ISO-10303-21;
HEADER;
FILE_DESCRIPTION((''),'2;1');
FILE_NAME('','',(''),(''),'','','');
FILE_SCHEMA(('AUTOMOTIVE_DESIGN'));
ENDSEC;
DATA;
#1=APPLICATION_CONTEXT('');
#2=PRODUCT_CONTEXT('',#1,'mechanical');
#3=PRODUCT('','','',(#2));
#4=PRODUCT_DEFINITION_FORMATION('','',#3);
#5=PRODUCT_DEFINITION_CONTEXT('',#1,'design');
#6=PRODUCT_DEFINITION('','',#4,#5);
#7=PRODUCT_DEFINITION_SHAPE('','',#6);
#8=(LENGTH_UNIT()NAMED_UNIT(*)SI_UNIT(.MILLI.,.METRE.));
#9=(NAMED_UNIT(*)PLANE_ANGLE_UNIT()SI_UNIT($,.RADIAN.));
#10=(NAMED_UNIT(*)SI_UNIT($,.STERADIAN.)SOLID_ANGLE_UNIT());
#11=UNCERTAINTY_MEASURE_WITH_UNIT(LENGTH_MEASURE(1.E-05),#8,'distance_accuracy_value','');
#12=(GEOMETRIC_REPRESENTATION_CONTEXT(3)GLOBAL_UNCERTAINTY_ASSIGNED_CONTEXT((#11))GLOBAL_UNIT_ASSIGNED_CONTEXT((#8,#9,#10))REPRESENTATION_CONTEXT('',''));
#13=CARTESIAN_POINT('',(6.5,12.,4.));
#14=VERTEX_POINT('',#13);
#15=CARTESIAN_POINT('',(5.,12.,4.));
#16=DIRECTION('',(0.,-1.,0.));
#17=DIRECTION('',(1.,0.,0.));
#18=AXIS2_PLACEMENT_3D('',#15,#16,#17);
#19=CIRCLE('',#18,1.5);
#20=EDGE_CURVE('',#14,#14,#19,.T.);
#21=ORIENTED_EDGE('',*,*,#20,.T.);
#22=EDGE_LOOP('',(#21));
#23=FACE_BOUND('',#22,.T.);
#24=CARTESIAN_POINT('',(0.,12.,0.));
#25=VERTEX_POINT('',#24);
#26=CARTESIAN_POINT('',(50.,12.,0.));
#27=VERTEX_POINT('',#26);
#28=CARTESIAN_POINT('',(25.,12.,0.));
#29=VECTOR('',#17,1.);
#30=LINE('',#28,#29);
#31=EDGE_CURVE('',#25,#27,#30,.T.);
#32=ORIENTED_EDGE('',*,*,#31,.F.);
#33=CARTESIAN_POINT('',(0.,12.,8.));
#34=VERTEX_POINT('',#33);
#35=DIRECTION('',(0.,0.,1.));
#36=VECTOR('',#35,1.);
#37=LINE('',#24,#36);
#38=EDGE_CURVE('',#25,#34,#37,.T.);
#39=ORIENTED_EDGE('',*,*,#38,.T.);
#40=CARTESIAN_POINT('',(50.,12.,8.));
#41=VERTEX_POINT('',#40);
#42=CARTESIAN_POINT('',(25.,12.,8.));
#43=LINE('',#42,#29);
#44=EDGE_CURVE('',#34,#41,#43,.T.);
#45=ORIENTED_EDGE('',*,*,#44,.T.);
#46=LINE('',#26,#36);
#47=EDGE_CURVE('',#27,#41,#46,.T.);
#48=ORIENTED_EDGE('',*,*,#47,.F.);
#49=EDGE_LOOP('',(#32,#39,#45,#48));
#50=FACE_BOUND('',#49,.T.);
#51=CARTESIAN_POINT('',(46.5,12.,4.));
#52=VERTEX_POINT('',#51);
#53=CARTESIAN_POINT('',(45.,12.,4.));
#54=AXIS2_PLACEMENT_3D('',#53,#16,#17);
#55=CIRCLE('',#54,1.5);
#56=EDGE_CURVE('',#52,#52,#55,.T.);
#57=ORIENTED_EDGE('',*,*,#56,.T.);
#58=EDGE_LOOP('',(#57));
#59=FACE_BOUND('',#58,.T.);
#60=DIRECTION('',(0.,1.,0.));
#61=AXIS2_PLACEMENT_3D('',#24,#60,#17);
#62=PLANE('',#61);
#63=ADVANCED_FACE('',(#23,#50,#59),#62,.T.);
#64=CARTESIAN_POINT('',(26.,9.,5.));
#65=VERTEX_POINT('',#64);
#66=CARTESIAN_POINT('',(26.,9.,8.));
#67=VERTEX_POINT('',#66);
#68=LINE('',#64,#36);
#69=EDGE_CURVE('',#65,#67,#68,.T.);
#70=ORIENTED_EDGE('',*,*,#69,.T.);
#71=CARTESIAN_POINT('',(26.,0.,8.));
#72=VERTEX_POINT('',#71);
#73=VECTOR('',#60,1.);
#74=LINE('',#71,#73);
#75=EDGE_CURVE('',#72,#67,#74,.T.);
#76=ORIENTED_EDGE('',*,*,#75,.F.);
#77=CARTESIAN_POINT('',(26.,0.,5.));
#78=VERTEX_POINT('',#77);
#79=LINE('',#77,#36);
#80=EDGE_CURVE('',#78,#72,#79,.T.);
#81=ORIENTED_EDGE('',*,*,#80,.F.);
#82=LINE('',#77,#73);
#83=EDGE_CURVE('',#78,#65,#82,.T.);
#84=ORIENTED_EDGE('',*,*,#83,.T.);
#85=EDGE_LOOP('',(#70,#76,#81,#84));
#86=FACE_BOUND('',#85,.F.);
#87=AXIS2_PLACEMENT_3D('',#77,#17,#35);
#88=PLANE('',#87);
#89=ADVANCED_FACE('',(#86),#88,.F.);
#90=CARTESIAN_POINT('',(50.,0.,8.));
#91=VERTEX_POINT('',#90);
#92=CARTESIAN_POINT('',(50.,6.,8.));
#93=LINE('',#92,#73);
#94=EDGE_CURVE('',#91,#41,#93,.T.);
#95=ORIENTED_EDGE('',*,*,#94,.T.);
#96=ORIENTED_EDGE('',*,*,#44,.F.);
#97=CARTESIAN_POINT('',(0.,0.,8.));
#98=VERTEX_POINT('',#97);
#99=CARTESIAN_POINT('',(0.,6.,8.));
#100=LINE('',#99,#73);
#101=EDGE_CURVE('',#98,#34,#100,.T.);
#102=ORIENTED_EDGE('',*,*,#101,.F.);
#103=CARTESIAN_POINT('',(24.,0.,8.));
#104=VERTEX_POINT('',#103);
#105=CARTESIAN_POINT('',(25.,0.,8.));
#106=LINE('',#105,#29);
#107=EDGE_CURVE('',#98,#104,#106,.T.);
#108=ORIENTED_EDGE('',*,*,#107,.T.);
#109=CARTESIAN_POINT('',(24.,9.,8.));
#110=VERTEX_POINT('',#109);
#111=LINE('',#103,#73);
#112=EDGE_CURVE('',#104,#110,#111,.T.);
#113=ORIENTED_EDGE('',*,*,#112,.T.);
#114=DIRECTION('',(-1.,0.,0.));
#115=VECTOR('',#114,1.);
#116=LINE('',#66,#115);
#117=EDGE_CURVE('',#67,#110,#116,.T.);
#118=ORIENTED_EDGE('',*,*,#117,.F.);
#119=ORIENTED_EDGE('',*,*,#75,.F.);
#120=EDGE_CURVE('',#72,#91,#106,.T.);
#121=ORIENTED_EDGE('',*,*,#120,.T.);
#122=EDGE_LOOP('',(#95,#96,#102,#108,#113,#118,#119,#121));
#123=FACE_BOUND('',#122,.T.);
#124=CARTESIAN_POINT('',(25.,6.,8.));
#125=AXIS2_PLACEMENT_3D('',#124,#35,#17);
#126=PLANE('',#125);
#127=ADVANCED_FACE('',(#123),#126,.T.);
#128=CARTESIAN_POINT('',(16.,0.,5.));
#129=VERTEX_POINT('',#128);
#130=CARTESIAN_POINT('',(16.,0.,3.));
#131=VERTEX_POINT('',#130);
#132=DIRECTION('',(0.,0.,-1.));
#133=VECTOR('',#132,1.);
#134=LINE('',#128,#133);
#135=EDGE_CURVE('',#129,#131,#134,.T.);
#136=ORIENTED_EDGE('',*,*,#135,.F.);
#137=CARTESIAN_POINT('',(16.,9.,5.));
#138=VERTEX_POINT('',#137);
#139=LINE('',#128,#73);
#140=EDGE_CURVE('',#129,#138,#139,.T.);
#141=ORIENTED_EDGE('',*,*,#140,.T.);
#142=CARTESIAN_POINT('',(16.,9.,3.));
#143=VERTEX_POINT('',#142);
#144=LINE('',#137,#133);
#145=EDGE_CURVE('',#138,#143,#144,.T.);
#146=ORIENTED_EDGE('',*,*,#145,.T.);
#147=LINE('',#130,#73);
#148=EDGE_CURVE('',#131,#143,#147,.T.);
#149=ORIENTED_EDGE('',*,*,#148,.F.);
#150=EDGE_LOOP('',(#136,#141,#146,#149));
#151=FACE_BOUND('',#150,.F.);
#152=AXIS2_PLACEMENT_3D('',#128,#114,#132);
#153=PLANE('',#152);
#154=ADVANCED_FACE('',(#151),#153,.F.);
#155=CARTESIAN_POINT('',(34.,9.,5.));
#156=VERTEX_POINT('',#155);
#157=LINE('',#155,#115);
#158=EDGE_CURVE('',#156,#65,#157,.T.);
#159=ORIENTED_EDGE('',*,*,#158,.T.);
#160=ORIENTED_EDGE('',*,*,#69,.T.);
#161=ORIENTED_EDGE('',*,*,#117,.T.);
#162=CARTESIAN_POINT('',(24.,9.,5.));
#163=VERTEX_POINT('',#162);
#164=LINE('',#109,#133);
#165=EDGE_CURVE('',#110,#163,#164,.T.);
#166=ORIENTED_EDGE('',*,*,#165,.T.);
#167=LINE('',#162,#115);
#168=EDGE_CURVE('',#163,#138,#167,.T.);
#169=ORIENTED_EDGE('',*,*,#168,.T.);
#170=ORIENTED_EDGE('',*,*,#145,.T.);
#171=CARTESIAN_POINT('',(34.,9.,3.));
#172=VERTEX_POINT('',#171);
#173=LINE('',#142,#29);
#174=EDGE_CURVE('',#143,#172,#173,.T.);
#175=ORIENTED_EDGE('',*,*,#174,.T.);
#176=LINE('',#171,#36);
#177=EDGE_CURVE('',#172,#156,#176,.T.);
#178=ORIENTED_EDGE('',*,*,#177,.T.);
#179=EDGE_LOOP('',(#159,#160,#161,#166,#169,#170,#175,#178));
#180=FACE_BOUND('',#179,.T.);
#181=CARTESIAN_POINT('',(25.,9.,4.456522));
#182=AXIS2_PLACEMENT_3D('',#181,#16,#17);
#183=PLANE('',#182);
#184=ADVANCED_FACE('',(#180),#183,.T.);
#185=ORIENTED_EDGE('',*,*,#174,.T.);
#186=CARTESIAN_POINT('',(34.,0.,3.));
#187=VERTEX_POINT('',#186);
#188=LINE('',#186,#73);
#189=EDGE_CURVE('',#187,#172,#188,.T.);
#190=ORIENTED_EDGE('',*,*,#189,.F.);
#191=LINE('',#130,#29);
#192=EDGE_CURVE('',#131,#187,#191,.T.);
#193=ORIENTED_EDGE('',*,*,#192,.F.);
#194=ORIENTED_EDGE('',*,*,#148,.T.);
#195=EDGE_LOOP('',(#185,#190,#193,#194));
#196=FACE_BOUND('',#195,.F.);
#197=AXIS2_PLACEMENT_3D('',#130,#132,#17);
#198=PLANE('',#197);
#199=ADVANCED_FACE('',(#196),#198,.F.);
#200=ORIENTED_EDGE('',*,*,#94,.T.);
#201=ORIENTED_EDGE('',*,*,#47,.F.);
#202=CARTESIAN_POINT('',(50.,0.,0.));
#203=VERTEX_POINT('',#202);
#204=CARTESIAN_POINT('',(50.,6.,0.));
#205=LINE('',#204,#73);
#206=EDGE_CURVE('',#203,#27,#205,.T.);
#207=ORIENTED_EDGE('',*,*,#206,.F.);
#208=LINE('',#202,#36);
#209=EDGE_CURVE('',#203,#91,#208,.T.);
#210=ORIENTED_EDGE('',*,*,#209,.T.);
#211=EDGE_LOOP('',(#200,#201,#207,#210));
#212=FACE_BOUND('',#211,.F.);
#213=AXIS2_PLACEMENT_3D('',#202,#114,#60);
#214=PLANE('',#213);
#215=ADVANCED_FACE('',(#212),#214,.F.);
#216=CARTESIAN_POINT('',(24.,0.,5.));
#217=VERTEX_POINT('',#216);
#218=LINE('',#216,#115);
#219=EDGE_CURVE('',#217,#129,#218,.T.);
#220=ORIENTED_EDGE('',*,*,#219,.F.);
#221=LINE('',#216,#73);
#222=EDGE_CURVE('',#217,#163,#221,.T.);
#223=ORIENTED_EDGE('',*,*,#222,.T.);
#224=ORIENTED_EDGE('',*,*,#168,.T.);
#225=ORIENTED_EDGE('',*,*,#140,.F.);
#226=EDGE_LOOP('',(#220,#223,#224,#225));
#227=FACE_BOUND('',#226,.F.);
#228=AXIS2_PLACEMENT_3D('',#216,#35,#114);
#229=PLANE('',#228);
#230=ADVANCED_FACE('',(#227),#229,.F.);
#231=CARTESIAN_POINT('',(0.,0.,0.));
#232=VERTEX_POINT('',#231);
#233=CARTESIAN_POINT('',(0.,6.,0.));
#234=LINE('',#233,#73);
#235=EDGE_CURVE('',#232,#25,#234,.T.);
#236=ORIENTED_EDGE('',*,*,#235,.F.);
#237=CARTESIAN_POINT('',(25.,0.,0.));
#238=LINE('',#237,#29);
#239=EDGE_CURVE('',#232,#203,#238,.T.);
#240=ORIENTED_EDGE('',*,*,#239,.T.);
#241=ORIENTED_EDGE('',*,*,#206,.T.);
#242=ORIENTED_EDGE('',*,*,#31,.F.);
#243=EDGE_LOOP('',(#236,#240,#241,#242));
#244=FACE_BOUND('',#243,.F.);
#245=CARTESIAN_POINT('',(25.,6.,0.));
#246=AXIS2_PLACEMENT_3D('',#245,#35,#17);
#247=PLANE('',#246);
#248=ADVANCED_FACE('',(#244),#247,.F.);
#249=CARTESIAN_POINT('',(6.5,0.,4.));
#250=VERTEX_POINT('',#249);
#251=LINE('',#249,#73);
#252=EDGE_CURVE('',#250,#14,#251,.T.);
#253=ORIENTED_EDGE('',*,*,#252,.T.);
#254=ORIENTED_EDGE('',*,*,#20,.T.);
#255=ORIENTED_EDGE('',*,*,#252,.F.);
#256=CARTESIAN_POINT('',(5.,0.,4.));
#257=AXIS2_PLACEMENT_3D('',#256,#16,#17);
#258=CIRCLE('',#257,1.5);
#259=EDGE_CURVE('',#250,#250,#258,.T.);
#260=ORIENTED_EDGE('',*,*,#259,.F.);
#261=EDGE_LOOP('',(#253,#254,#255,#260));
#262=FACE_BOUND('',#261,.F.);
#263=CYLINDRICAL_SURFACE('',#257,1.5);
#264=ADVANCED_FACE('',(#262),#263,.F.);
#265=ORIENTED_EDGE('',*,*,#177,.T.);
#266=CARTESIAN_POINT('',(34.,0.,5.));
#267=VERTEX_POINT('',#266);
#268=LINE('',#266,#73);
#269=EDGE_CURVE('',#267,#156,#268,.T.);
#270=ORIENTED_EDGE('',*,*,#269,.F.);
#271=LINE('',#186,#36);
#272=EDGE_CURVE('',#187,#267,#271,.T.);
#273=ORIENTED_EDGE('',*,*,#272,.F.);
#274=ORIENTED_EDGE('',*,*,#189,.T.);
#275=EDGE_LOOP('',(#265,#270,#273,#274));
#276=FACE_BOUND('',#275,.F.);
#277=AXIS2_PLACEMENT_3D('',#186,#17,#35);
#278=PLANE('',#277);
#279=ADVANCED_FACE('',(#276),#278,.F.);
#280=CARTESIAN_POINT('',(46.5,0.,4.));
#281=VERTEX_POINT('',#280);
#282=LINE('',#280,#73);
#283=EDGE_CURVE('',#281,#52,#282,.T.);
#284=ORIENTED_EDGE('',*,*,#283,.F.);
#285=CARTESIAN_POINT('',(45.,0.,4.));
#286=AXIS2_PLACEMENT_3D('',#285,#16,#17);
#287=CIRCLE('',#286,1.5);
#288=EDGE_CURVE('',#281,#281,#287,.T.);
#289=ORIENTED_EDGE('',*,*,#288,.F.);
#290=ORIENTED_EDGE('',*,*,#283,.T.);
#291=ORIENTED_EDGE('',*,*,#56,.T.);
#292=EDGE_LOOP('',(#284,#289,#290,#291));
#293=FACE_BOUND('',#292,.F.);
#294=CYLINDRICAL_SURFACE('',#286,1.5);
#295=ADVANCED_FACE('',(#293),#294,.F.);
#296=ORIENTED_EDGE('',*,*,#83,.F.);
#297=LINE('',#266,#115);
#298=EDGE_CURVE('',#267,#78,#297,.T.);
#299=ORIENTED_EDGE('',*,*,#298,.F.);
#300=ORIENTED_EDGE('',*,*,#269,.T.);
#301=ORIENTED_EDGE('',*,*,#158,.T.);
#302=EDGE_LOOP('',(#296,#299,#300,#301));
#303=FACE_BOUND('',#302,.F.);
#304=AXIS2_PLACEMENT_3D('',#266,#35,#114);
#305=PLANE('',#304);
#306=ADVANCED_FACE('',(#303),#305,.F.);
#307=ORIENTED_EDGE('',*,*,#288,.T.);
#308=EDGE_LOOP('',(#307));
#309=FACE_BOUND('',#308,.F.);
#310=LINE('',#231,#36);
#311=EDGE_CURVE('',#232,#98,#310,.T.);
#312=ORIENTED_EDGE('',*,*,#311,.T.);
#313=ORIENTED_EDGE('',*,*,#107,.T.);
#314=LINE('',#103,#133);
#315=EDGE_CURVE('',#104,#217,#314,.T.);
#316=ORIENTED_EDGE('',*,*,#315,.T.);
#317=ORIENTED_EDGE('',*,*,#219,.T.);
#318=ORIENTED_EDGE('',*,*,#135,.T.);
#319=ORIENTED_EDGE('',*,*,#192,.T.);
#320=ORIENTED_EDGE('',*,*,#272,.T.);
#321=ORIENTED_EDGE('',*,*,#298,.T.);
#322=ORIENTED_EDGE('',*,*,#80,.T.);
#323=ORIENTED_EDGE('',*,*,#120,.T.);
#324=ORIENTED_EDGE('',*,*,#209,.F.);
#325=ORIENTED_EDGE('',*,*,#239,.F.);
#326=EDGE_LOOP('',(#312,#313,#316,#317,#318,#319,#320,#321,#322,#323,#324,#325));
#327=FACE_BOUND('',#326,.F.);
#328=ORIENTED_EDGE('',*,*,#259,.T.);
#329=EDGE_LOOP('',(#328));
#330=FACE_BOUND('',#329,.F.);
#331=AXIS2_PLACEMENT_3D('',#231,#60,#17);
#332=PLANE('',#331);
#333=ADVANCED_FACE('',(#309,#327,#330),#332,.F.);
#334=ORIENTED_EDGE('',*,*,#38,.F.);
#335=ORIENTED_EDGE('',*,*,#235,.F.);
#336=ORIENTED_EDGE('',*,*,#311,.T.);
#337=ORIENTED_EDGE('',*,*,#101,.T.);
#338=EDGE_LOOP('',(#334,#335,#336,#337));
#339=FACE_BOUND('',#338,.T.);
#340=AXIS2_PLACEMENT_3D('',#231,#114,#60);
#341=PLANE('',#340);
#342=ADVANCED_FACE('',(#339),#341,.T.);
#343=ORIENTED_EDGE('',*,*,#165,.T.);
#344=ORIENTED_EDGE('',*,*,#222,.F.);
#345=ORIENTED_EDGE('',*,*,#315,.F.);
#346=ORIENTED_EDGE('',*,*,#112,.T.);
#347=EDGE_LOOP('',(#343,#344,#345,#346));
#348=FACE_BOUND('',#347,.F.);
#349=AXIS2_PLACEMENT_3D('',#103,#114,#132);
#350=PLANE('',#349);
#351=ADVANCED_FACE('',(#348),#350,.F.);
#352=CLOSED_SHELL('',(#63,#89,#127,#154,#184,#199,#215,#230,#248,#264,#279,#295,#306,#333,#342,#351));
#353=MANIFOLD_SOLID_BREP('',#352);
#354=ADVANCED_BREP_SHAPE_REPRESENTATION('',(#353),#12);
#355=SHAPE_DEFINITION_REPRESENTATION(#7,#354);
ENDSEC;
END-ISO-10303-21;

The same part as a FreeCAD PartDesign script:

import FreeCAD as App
import Part
import Sketcher
Q = App.Units.Quantity

doc = App.newDocument("Part")
body = doc.addObject("PartDesign::Body", "Body")

sketch1 = doc.addObject("Sketcher::SketchObject", "Sketch")
body.addObject(sketch1)
sketch1.AttachmentSupport = (doc.XY_Plane, [""])
sketch1.MapMode = "FlatFace"
sketch1.addGeometry([
    Part.LineSegment(App.Vector(0, 12, 0), App.Vector(0, 0, 0)),
    Part.LineSegment(App.Vector(0, 0, 0), App.Vector(50, 0, 0)),
    Part.LineSegment(App.Vector(50, 0, 0), App.Vector(50, 12, 0)),
    Part.LineSegment(App.Vector(50, 12, 0), App.Vector(0, 12, 0)),
], False)
sketch1.addConstraint([
    Sketcher.Constraint("Coincident", 0, 2, 1, 1),
    Sketcher.Constraint("Coincident", 1, 2, 2, 1),
    Sketcher.Constraint("Coincident", 2, 2, 3, 1),
    Sketcher.Constraint("Coincident", 3, 2, 0, 1),
    Sketcher.Constraint("Vertical", 0),
    Sketcher.Constraint("Horizontal", 1),
    Sketcher.Constraint("Vertical", 2),
    Sketcher.Constraint("Horizontal", 3),
    Sketcher.Constraint("Coincident", 0, 2, -1, 1),
    Sketcher.Constraint("DistanceX", 1, 1, 1, 2, Q("50 mm")),
    Sketcher.Constraint("DistanceY", 0, 2, 0, 1, Q("12 mm")),
])
pad1 = doc.addObject("PartDesign::Pad", "Pad")
body.addObject(pad1)
pad1.Profile = sketch1
pad1.Length = 8

sketch2 = doc.addObject("Sketcher::SketchObject", "Sketch001")
body.addObject(sketch2)
sketch2.AttachmentSupport = (doc.XZ_Plane, [""])
sketch2.MapMode = "FlatFace"
sketch2.addGeometry([
    Part.Circle(App.Vector(5, 4, 0), App.Vector(0, 0, 1), 1.5),
    Part.Circle(App.Vector(45, 4, 0), App.Vector(0, 0, 1), 1.5),
], False)
sketch2.addConstraint([
    Sketcher.Constraint("Equal", 0, 1),
    Sketcher.Constraint("Horizontal", 0, 3, 1, 3),
    Sketcher.Constraint("Diameter", 0, Q("3 mm")),
    Sketcher.Constraint("DistanceX", -1, 1, 0, 3, Q("5 mm")),
    Sketcher.Constraint("DistanceY", -1, 1, 0, 3, Q("4 mm")),
    Sketcher.Constraint("DistanceX", -1, 1, 1, 3, Q("45 mm")),
])
pocket1 = doc.addObject("PartDesign::Pocket", "Pocket")
body.addObject(pocket1)
pocket1.Profile = sketch2
pocket1.Length = 12

sketch3 = doc.addObject("Sketcher::SketchObject", "Sketch002")
body.addObject(sketch3)
sketch3.AttachmentSupport = (doc.XZ_Plane, [""])
sketch3.MapMode = "FlatFace"
sketch3.addGeometry([
    Part.LineSegment(App.Vector(26, 8, 0), App.Vector(24, 8, 0)),
    Part.LineSegment(App.Vector(24, 8, 0), App.Vector(24, 5, 0)),
    Part.LineSegment(App.Vector(24, 5, 0), App.Vector(16, 5, 0)),
    Part.LineSegment(App.Vector(16, 5, 0), App.Vector(16, 3, 0)),
    Part.LineSegment(App.Vector(16, 3, 0), App.Vector(34, 3, 0)),
    Part.LineSegment(App.Vector(34, 3, 0), App.Vector(34, 5, 0)),
    Part.LineSegment(App.Vector(34, 5, 0), App.Vector(26, 5, 0)),
    Part.LineSegment(App.Vector(26, 5, 0), App.Vector(26, 8, 0)),
], False)
sketch3.addConstraint([
    Sketcher.Constraint("Coincident", 0, 2, 1, 1),
    Sketcher.Constraint("Coincident", 1, 2, 2, 1),
    Sketcher.Constraint("Coincident", 2, 2, 3, 1),
    Sketcher.Constraint("Coincident", 3, 2, 4, 1),
    Sketcher.Constraint("Coincident", 4, 2, 5, 1),
    Sketcher.Constraint("Coincident", 5, 2, 6, 1),
    Sketcher.Constraint("Coincident", 6, 2, 7, 1),
    Sketcher.Constraint("Coincident", 7, 2, 0, 1),
    Sketcher.Constraint("Horizontal", 0),
    Sketcher.Constraint("Vertical", 1),
    Sketcher.Constraint("Horizontal", 2),
    Sketcher.Constraint("Vertical", 3),
    Sketcher.Constraint("Horizontal", 4),
    Sketcher.Constraint("Vertical", 5),
    Sketcher.Constraint("Horizontal", 6),
    Sketcher.Constraint("Vertical", 7),
    Sketcher.Constraint("Horizontal", 2, 2, 5, 2),
    Sketcher.Constraint("Equal", 2, 6),
    Sketcher.Constraint("Equal", 0, 3),
    Sketcher.Constraint("DistanceX", 0, 2, 0, 1, Q("2 mm")),
    Sketcher.Constraint("DistanceX", 2, 2, 2, 1, Q("8 mm")),
    Sketcher.Constraint("DistanceY", 1, 2, 1, 1, Q("3 mm")),
    Sketcher.Constraint("DistanceX", -1, 1, 0, 2, Q("24 mm")),
    Sketcher.Constraint("DistanceY", -1, 1, 0, 2, Q("8 mm")),
])
pocket2 = doc.addObject("PartDesign::Pocket", "Pocket001")
body.addObject(pocket2)
pocket2.Profile = sketch3
pocket2.Length = 9

doc.recompute()
